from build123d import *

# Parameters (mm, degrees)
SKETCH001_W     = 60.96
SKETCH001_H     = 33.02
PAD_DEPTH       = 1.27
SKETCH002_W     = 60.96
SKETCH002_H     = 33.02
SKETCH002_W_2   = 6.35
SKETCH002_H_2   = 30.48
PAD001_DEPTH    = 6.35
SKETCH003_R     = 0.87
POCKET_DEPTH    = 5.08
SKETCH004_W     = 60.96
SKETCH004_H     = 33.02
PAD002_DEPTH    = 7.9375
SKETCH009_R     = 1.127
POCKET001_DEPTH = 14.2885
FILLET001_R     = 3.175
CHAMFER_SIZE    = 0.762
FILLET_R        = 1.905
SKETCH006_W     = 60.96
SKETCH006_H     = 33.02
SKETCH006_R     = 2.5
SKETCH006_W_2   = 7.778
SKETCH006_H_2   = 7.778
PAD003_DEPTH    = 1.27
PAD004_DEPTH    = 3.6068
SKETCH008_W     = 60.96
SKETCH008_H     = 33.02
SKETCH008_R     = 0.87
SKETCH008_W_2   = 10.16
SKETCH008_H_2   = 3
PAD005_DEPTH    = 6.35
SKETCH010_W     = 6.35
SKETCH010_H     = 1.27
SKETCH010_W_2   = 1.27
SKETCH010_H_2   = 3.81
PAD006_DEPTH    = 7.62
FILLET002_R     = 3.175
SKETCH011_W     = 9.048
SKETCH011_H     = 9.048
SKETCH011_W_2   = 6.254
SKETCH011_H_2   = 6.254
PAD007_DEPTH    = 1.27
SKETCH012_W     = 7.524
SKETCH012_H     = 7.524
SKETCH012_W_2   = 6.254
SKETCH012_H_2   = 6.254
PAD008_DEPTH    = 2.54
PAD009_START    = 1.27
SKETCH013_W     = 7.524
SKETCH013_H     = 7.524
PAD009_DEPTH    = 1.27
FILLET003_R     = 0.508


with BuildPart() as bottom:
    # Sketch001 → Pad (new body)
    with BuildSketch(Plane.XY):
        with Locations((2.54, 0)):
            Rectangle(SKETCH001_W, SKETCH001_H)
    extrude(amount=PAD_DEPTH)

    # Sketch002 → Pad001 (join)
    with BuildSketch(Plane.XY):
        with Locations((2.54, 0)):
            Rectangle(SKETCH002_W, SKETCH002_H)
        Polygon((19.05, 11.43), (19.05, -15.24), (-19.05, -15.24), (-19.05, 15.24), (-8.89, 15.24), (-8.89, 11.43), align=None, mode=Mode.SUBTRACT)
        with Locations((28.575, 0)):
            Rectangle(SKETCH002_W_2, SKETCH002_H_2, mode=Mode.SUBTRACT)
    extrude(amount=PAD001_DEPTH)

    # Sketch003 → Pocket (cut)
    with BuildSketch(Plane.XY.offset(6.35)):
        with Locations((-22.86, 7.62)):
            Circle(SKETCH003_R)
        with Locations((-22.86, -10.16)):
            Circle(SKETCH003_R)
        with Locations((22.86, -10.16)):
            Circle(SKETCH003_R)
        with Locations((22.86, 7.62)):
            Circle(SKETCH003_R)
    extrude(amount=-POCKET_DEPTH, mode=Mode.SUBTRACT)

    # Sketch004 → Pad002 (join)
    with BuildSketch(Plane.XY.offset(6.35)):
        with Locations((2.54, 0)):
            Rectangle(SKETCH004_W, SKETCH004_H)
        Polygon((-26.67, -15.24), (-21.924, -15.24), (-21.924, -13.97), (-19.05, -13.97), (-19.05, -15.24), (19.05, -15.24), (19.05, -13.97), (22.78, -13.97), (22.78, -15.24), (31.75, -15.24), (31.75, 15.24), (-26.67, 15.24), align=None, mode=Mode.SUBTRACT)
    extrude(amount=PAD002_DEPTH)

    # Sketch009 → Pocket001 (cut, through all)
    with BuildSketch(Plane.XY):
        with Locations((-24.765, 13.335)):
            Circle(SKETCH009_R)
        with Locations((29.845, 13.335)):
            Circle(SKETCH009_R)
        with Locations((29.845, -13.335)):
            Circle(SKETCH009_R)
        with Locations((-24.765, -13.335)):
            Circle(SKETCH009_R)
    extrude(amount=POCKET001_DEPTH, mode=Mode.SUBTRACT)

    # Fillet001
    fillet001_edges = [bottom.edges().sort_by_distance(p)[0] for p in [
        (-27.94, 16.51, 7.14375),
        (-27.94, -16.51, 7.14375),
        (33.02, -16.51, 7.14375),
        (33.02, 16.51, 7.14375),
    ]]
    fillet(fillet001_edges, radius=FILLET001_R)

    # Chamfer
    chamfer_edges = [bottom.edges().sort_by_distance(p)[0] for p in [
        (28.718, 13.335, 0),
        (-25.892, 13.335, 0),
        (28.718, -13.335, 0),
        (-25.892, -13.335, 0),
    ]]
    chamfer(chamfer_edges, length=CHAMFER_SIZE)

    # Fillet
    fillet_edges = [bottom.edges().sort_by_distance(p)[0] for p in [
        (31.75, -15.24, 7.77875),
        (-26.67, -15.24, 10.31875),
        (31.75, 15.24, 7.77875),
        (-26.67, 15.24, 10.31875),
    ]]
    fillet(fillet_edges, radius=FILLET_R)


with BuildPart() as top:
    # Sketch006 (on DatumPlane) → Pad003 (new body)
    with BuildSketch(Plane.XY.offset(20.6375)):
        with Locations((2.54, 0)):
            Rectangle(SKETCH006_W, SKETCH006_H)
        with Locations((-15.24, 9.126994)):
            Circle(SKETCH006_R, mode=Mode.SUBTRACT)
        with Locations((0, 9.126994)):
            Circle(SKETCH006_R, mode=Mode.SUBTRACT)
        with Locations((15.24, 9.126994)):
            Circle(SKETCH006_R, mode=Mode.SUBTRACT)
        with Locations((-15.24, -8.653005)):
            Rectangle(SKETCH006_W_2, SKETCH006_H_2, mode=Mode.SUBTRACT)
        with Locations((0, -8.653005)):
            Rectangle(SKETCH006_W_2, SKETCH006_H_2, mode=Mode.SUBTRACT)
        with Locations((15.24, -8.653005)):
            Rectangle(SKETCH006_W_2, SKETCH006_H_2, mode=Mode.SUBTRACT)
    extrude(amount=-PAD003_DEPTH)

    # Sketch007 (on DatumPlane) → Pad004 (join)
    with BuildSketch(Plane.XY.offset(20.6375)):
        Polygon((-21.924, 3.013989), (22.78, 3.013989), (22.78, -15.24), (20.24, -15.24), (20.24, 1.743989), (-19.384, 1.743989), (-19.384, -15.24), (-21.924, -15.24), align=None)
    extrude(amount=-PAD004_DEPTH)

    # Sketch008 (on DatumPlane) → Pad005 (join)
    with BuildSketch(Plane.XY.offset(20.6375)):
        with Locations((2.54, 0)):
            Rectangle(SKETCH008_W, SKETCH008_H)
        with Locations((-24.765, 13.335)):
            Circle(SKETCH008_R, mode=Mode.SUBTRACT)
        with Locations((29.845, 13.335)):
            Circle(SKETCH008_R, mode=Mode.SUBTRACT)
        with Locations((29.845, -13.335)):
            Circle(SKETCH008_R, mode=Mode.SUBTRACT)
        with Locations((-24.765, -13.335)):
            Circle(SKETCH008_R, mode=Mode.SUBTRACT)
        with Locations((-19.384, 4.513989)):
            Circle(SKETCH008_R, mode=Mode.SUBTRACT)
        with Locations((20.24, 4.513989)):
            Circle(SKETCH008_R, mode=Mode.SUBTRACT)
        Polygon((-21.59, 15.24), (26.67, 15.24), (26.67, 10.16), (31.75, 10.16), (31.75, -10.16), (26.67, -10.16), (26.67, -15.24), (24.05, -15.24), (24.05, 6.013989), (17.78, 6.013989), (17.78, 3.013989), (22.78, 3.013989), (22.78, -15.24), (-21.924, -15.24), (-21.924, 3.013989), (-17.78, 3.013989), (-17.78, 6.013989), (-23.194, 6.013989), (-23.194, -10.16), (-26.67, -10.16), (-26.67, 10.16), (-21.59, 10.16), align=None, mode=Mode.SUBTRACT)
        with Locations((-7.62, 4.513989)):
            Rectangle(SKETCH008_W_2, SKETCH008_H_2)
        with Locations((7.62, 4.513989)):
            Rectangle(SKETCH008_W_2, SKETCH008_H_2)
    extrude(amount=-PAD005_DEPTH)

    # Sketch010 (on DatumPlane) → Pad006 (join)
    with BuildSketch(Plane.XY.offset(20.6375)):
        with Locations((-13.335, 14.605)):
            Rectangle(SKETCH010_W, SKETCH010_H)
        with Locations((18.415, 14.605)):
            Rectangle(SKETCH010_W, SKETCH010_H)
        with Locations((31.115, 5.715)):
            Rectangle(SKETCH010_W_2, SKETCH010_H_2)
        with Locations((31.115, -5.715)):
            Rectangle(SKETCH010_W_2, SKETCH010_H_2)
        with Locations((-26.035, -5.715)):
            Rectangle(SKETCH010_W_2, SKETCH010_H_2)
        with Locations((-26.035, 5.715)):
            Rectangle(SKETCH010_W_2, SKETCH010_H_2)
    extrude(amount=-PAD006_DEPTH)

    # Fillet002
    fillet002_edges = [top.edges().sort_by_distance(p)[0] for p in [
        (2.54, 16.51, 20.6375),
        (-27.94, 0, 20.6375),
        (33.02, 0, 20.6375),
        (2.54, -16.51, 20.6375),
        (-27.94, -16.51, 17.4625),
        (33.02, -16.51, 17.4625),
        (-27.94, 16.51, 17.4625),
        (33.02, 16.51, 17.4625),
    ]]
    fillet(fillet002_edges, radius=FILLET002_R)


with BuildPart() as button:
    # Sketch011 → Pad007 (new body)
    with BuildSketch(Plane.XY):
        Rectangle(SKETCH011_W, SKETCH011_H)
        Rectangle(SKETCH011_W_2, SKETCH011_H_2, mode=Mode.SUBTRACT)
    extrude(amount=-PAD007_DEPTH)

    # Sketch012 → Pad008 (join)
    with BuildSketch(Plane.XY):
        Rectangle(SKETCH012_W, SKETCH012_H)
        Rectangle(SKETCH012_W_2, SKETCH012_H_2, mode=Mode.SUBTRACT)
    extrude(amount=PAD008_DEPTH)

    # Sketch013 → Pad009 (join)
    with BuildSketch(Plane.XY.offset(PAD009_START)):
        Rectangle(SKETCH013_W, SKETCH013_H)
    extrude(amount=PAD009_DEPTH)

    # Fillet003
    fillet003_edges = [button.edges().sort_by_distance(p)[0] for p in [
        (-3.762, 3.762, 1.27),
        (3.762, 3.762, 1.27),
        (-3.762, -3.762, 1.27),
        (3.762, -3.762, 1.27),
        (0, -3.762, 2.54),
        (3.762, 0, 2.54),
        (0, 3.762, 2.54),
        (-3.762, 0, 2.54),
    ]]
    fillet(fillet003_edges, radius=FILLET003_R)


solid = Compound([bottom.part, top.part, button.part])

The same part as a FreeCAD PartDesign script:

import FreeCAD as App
import Part
import Sketcher
from FreeCAD import Vector
Q = App.Units.Quantity


def edges_at(feature, points):
    """Names of the edges that pass closest to the given points."""
    edges = feature.Shape.Edges
    near = lambda p: min(range(len(edges)), key=lambda i: edges[i].distToShape(Part.Vertex(*p))[0])
    return sorted({f"Edge{near(p) + 1}" for p in points})


def add_polygon(sketch, points):
    """Adds a closed chain of lines whose ends are joined by coincident constraints."""
    first, n = sketch.GeometryCount, len(points)
    for a, b in zip(points, points[1:] + points[:1]):
        sketch.addGeometry(Part.LineSegment(App.Vector(*a, 0), App.Vector(*b, 0)), False)
    for i in range(n):
        sketch.addConstraint(Sketcher.Constraint("Coincident", first + i, 2, first + (i + 1) % n, 1))

doc = App.newDocument("Part")
params = doc.addObject("Spreadsheet::Sheet", "Params")
for row, (alias, value) in enumerate([
    ("sketch1_width", "2.4 in"),
    ("sketch1_height", "1.3 in"),
    ("pad1_length", "0.05 in"),
    ("sketch2_width", "2.4 in"),
    ("sketch2_width2", "1.1 in"),
    ("sketch2_width3", "1.5 in"),
    ("sketch2_height", "1.3 in"),
    ("sketch2_height2", "1.2 in"),
    ("pad2_length", "0.25 in"),
    ("pocket1_length", "0.2 in"),
    ("sketch4_width", "2.4 in"),
    ("sketch4_width2", "2.3 in"),
    ("sketch4_width3", "1.5 in"),
    ("sketch4_height", "1.3 in"),
    ("sketch4_height2", "1.2 in"),
    ("pad3_length", "0.3125 in"),
    ("fillet_radius", "0.125 in"),
    ("chamfer_size", "0.03 in"),
    ("fillet2_radius", "0.075 in"),
    ("sketch6_width", "2.4 in"),
    ("sketch6_height", "1.3 in"),
    ("pad4_length", "0.05 in"),
    ("sketch7_width", "0.1 in"),
    ("sketch7_width2", "1.76 in"),
    ("pad5_length", "0.142 in"),
    ("sketch8_width", "2.4 in"),
    ("sketch8_width2", "1.9 in"),
    ("sketch8_width3", "0.2 in"),
    ("sketch8_width4", "0.4 in"),
    ("sketch8_height", "1.3 in"),
    ("pad6_length", "0.25 in"),
    ("sketch9_width", "0.25 in"),
    ("sketch9_width2", "0.05 in"),
    ("sketch9_height", "0.15 in"),
    ("pad7_length", "0.3 in"),
    ("fillet3_radius", "0.125 in"),
    ("pad8_length", "0.05 in"),
    ("pad9_length", "0.1 in"),
    ("pad10_length", "0.05 in"),
    ("fillet4_radius", "0.02 in"),
], start=1):
    params.set(f"A{row}", alias)
    params.set(f"B{row}", "=" + value)
    params.setAlias(f"B{row}", alias)

body = doc.addObject("PartDesign::Body", "Body")

sketch1 = body.newObject("Sketcher::SketchObject", "Sketch")
sketch1.AttachmentSupport = (doc.getObject("XY_Plane"), [""])
sketch1.MapMode = "FlatFace"
add_polygon(sketch1, [(-27.94, 16.51), (-27.94, -16.51), (33.02, -16.51), (33.02, 16.51)])
sketch1.addConstraint([
    Sketcher.Constraint("Vertical", 0),
    Sketcher.Constraint("Horizontal", 1),
    Sketcher.Constraint("Vertical", 2),
    Sketcher.Constraint("Horizontal", 3),
    Sketcher.Constraint("DistanceX", 1, 1, 1, 2, Q("2.4 in")),
    Sketcher.Constraint("DistanceY", 0, 2, 0, 1, Q("1.3 in")),
    Sketcher.Constraint("DistanceX", 0, 2, -1, 1, Q("1.1 in")),
    Sketcher.Constraint("DistanceY", 0, 2, -1, 1, Q("0.65 in")),
])
sketch1.setExpression("Constraints[8]", "Params.sketch1_width")
sketch1.setExpression("Constraints[9]", "Params.sketch1_height")
pad1 = body.newObject("PartDesign::Pad", "Pad")
pad1.Profile = sketch1
pad1.setExpression("Length", "Params.pad1_length")

sketch2 = body.newObject("Sketcher::SketchObject", "Sketch001")
sketch2.AttachmentSupport = (doc.getObject("XY_Plane"), [""])
sketch2.MapMode = "FlatFace"
add_polygon(sketch2, [(-27.94, 16.51), (-27.94, -16.51), (33.02, -16.51), (33.02, 16.51)])
add_polygon(sketch2, [(-8.89, 11.43), (19.05, 11.43), (19.05, -15.24), (-19.05, -15.24), (-19.05, 15.24), (-8.89, 15.24)])
add_polygon(sketch2, [(31.75, -15.24), (25.4, -15.24), (25.4, 15.24), (31.75, 15.24)])
sketch2.addConstraint([
    Sketcher.Constraint("Vertical", 0),
    Sketcher.Constraint("Horizontal", 1),
    Sketcher.Constraint("Vertical", 2),
    Sketcher.Constraint("Horizontal", 3),
    Sketcher.Constraint("Horizontal", 4),
    Sketcher.Constraint("Vertical", 5),
    Sketcher.Constraint("Horizontal", 6),
    Sketcher.Constraint("Vertical", 7),
    Sketcher.Constraint("Horizontal", 8),
    Sketcher.Constraint("Vertical", 9),
    Sketcher.Constraint("Horizontal", 10),
    Sketcher.Constraint("Vertical", 11),
    Sketcher.Constraint("Horizontal", 12),
    Sketcher.Constraint("Vertical", 13),
    Sketcher.Constraint("Symmetric", 5, 2, 7, 2, -1, 1),
    Sketcher.Constraint("Horizontal", 6, 2, 10, 2),
    Sketcher.Constraint("Horizontal", 8, 2, 11, 2),
    Sketcher.Constraint("DistanceX", 1, 1, 1, 2, Q("2.4 in")),
    Sketcher.Constraint("DistanceX", 4, 1, 4, 2, Q("1.1 in")),
    Sketcher.Constraint("DistanceX", 6, 2, 6, 1, Q("1.5 in")),
    Sketcher.Constraint("DistanceY", 0, 2, 0, 1, Q("1.3 in")),
    Sketcher.Constraint("DistanceY", 7, 1, 7, 2, Q("1.2 in")),
    Sketcher.Constraint("DistanceX", -1, 1, 10, 2, Q("1 in")),
    Sketcher.Constraint("DistanceX", 10, 2, 10, 1, Q("0.25 in")),
    Sketcher.Constraint("DistanceY", 5, 2, 5, 1, Q("1.05 in")),
    Sketcher.Constraint("DistanceX", 0, 2, -1, 1, Q("1.1 in")),
    Sketcher.Constraint("DistanceY", 4, 2, 2, 2, Q("0.2 in")),
])
sketch2.setExpression("Constraints[31]", "Params.sketch2_width")
sketch2.setExpression("Constraints[32]", "Params.sketch2_width2")
sketch2.setExpression("Constraints[33]", "Params.sketch2_width3")
sketch2.setExpression("Constraints[34]", "Params.sketch2_height")
sketch2.setExpression("Constraints[35]", "Params.sketch2_height2")
pad2 = body.newObject("PartDesign::Pad", "Pad001")
pad2.Profile = sketch2
pad2.setExpression("Length", "Params.pad2_length")

sketch3 = body.newObject("Sketcher::SketchObject", "Sketch002")
sketch3.AttachmentSupport = (doc.getObject("XY_Plane"), [""])
sketch3.MapMode = "FlatFace"
sketch3.AttachmentOffset = App.Placement(Vector(0, 0, 0.25 * 25.4), App.Rotation())
sketch3.addGeometry([
    Part.Circle(Vector(-22.86, 7.62, 0), Vector(0, 0, 1), 0.87),
    Part.Circle(Vector(-22.86, -10.16, 0), Vector(0, 0, 1), 0.87),
    Part.Circle(Vector(22.86, -10.16, 0), Vector(0, 0, 1), 0.87),
    Part.Circle(Vector(22.86, 7.62, 0), Vector(0, 0, 1), 0.87),
], False)
sketch3.addConstraint([
    Sketcher.Constraint("Equal", 0, 1),
    Sketcher.Constraint("Equal", 1, 2),
    Sketcher.Constraint("Equal", 2, 3),
    Sketcher.Constraint("Symmetric", 1, 3, 2, 3, -2),
    Sketcher.Constraint("Symmetric", 0, 3, 3, 3, -2),
    Sketcher.Constraint("Vertical", 0, 3, 1, 3),
    Sketcher.Constraint("DistanceX", 0, 3, -1, 1, Q("0.9 in")),
    Sketcher.Constraint("DistanceY", -1, 1, 0, 3, Q("0.3 in")),
    Sketcher.Constraint("DistanceY", 1, 3, -1, 1, Q("0.4 in")),
    Sketcher.Constraint("Diameter", 0, Q("1.74 mm")),
])
pocket1 = body.newObject("PartDesign::Pocket", "Pocket")
pocket1.Profile = sketch3
pocket1.setExpression("Length", "Params.pocket1_length")

sketch4 = body.newObject("Sketcher::SketchObject", "Sketch003")
sketch4.AttachmentSupport = (doc.getObject("XY_Plane"), [""])
sketch4.MapMode = "FlatFace"
sketch4.AttachmentOffset = App.Placement(Vector(0, 0, 0.25 * 25.4), App.Rotation())
add_polygon(sketch4, [(-27.94, 16.51), (-27.94, -16.51), (33.02, -16.51), (33.02, 16.51)])
add_polygon(sketch4, [(-21.924, -15.24), (-26.67, -15.24), (-26.67, 15.24), (31.75, 15.24), (31.75, -15.24), (22.78, -15.24), (22.78, -13.97), (19.05, -13.97), (19.05, -15.24), (-19.05, -15.24), (-19.05, -13.97), (-21.924, -13.97)])
sketch4.addConstraint([
    Sketcher.Constraint("Vertical", 0),
    Sketcher.Constraint("Horizontal", 1),
    Sketcher.Constraint("Vertical", 2),
    Sketcher.Constraint("Horizontal", 3),
    Sketcher.Constraint("Horizontal", 4),
    Sketcher.Constraint("Vertical", 5),
    Sketcher.Constraint("Horizontal", 6),
    Sketcher.Constraint("Vertical", 7),
    Sketcher.Constraint("Horizontal", 8),
    Sketcher.Constraint("Vertical", 9),
    Sketcher.Constraint("Horizontal", 10),
    Sketcher.Constraint("Vertical", 11),
    Sketcher.Constraint("Horizontal", 12),
    Sketcher.Constraint("Vertical", 13),
    Sketcher.Constraint("Horizontal", 14),
    Sketcher.Constraint("Vertical", 15),
    Sketcher.Constraint("Symmetric", 10, 2, 13, 2, -2),
    Sketcher.Constraint("Horizontal", 4, 2, 7, 2),
    Sketcher.Constraint("Horizontal", 8, 2, 11, 2),
    Sketcher.Constraint("DistanceX", 1, 1, 1, 2, Q("2.4 in")),
    Sketcher.Constraint("DistanceX", 6, 1, 6, 2, Q("2.3 in")),
    Sketcher.Constraint("DistanceX", 12, 2, 12, 1, Q("1.5 in")),
    Sketcher.Constraint("DistanceY", 0, 2, 0, 1, Q("1.3 in")),
    Sketcher.Constraint("DistanceY", 5, 1, 5, 2, Q("1.2 in")),
    Sketcher.Constraint("DistanceY", 9, 1, 9, 2, Q("0.05 in")),
    Sketcher.Constraint("DistanceX", 0, 2, -1, 1, Q("1.1 in")),
    Sketcher.Constraint("DistanceY", 4, 2, -1, 1, Q("0.6 in")),
    Sketcher.Constraint("DistanceY", 1, 2, 9, 2, Q("0.1 in")),
    Sketcher.Constraint("DistanceX", 10, 2, 7, 2, Q("0.5 in")),
    Sketcher.Constraint("DistanceX", 4, 2, 4, 1, Q("4.746 mm")),
    Sketcher.Constraint("DistanceX", 8, 2, 8, 1, Q("8.97 mm")),
])
sketch4.setExpression("Constraints[35]", "Params.sketch4_width")
sketch4.setExpression("Constraints[36]", "Params.sketch4_width2")
sketch4.setExpression("Constraints[37]", "Params.sketch4_width3")
sketch4.setExpression("Constraints[38]", "Params.sketch4_height")
sketch4.setExpression("Constraints[39]", "Params.sketch4_height2")
pad3 = body.newObject("PartDesign::Pad", "Pad002")
pad3.Profile = sketch4
pad3.setExpression("Length", "Params.pad3_length")

sketch5 = body.newObject("Sketcher::SketchObject", "Sketch004")
sketch5.AttachmentSupport = (doc.getObject("XY_Plane"), [""])
sketch5.MapMode = "FlatFace"
sketch5.addGeometry([
    Part.Circle(Vector(-24.765, 13.335, 0), Vector(0, 0, 1), 1.127),
    Part.Circle(Vector(29.845, 13.335, 0), Vector(0, 0, 1), 1.127),
    Part.Circle(Vector(29.845, -13.335, 0), Vector(0, 0, 1), 1.127),
    Part.Circle(Vector(-24.765, -13.335, 0), Vector(0, 0, 1), 1.127),
], False)
sketch5.addConstraint([
    Sketcher.Constraint("Equal", 0, 1),
    Sketcher.Constraint("Equal", 1, 2),
    Sketcher.Constraint("Equal", 2, 3),
    Sketcher.Constraint("Symmetric", 1, 3, 2, 3, -1),
    Sketcher.Constraint("Symmetric", 0, 3, 3, 3, -1),
    Sketcher.Constraint("Horizontal", 0, 3, 1, 3),
    Sketcher.Constraint("Diameter", 0, Q("2.254 mm")),
    Sketcher.Constraint("DistanceX", 0, 3, 1, 3, Q("2.15 in")),
    Sketcher.Constraint("DistanceY", 2, 3, 1, 3, Q("1.05 in")),
    Sketcher.Constraint("DistanceX", 0, 3, -1, 1, Q("0.975 in")),
])
pocket2 = body.newObject("PartDesign::Pocket", "Pocket001")
pocket2.Profile = sketch5
pocket2.Type = "ThroughAll"
pocket2.Reversed = True
doc.recompute()

fillet = body.newObject("PartDesign::Fillet", "Fillet")
fillet.Base = (pocket2, edges_at(pocket2, [
    (-27.94, 16.51, 7.144),
    (-27.94, -16.51, 7.144),
    (33.02, -16.51, 7.144),
    (33.02, 16.51, 7.144),
]))
fillet.setExpression("Radius", "Params.fillet_radius")
doc.recompute()

chamfer = body.newObject("PartDesign::Chamfer", "Chamfer")
chamfer.Base = (fillet, edges_at(fillet, [
    (28.718, 13.335, 0),
    (-25.892, 13.335, 0),
    (28.718, -13.335, 0),
    (-25.892, -13.335, 0),
]))
chamfer.setExpression("Size", "Params.chamfer_size")
doc.recompute()

fillet2 = body.newObject("PartDesign::Fillet", "Fillet001")
fillet2.Base = (chamfer, edges_at(chamfer, [
    (31.75, -15.24, 7.779),
    (-26.67, -15.24, 10.319),
    (31.75, 15.24, 7.779),
    (-26.67, 15.24, 10.319),
]))
fillet2.setExpression("Radius", "Params.fillet2_radius")
body2 = doc.addObject("PartDesign::Body", "Body001")

sketch6 = body2.newObject("Sketcher::SketchObject", "Sketch005")
sketch6.AttachmentSupport = (doc.getObject("XY_Plane001"), [""])
sketch6.MapMode = "FlatFace"
sketch6.AttachmentOffset = App.Placement(Vector(0, 0, 0.8125 * 25.4), App.Rotation())
add_polygon(sketch6, [(-27.94, 16.51), (-27.94, -16.51), (33.02, -16.51), (33.02, 16.51)])
add_polygon(sketch6, [(-11.351, -12.542005), (-19.129, -12.542005), (-19.129, -4.764005), (-11.351, -4.764005)])
add_polygon(sketch6, [(3.889, -12.542005), (-3.889, -12.542005), (-3.889, -4.764005), (3.889, -4.764005)])
add_polygon(sketch6, [(19.129, -12.542005), (11.351, -12.542005), (11.351, -4.764005), (19.129, -4.764005)])
sketch6.addGeometry(Part.Circle(Vector(-15.24, 9.126994, 0), Vector(0, 0, 1), 2.5), False)
sketch6.addGeometry(Part.Circle(Vector(0, 9.126994, 0), Vector(0, 0, 1), 2.5), False)
sketch6.addGeometry(Part.Circle(Vector(15.24, 9.126994, 0), Vector(0, 0, 1), 2.5), False)
sketch6.addConstraint([
    Sketcher.Constraint("Vertical", 0),
    Sketcher.Constraint("Horizontal", 1),
    Sketcher.Constraint("Vertical", 2),
    Sketcher.Constraint("Horizontal", 3),
    Sketcher.Constraint("Horizontal", 4),
    Sketcher.Constraint("Vertical", 5),
    Sketcher.Constraint("Horizontal", 6),
    Sketcher.Constraint("Vertical", 7),
    Sketcher.Constraint("Horizontal", 8),
    Sketcher.Constraint("Vertical", 9),
    Sketcher.Constraint("Horizontal", 10),
    Sketcher.Constraint("Vertical", 11),
    Sketcher.Constraint("Horizontal", 12),
    Sketcher.Constraint("Vertical", 13),
    Sketcher.Constraint("Horizontal", 14),
    Sketcher.Constraint("Vertical", 15),
    Sketcher.Constraint("Equal", 16, 17),
    Sketcher.Constraint("Equal", 17, 18),
    Sketcher.Constraint("Symmetric", 16, 3, 18, 3, -2),
    Sketcher.Constraint("Symmetric", 7, 2, 12, 2, -2),
    Sketcher.Constraint("Symmetric", 5, 2, 14, 2, -2),
    Sketcher.Constraint("PointOnObject", 17, 3, -2),
    Sketcher.Constraint("Horizontal", 16, 3, 17, 3),
    Sketcher.Constraint("Horizontal", 7, 2, 8, 2),
    Sketcher.Constraint("Horizontal", 6, 2, 9, 2),
    Sketcher.Constraint("Equal", 6, 8),
    Sketcher.Constraint("Equal", 14, 5),
    Sketcher.Constraint("DistanceX", 1, 1, 1, 2, Q("2.4 in")),
    Sketcher.Constraint("DistanceY", 0, 2, 0, 1, Q("1.3 in")),
    Sketcher.Constraint("DistanceX", 16, 3, -1, 1, Q("0.6 in")),
    Sketcher.Constraint("DistanceX", 0, 2, -1, 1, Q("1.1 in")),
    Sketcher.Constraint("DistanceX", 4, 2, 8, 2, Q("0.6 in")),
    Sketcher.Constraint("DistanceX", 8, 2, 12, 2, Q("0.6 in")),
    Sketcher.Constraint("Diameter", 16, Q("5 mm")),
    Sketcher.Constraint("DistanceY", 0, 2, -1, 1, Q("0.65 in")),
    Sketcher.Constraint("DistanceX", 4, 2, 4, 1, Q("7.778 mm")),
    Sketcher.Constraint("DistanceY", 4, 2, 16, 3, Q("21.668999 mm")),
    Sketcher.Constraint("DistanceY", -1, 1, 16, 3, Q("9.126994 mm")),
])
sketch6.setExpression("Constraints[43]", "Params.sketch6_width")
sketch6.setExpression("Constraints[44]", "Params.sketch6_height")
pad4 = body2.newObject("PartDesign::Pad", "Pad003")
pad4.Profile = sketch6
pad4.setExpression("Length", "Params.pad4_length")
pad4.Reversed = True

sketch7 = body2.newObject("Sketcher::SketchObject", "Sketch006")
sketch7.AttachmentSupport = (doc.getObject("XY_Plane001"), [""])
sketch7.MapMode = "FlatFace"
sketch7.AttachmentOffset = App.Placement(Vector(0, 0, 0.8125 * 25.4), App.Rotation())
add_polygon(sketch7, [(22.78, 3.013989), (-21.924, 3.013989), (-21.924, -15.24), (-19.384, -15.24), (-19.384, 1.743989), (20.24, 1.743989), (20.24, -15.24), (22.78, -15.24)])
sketch7.addConstraint([
    Sketcher.Constraint("Horizontal", 0),
    Sketcher.Constraint("Vertical", 1),
    Sketcher.Constraint("Horizontal", 2),
    Sketcher.Constraint("Vertical", 3),
    Sketcher.Constraint("Horizontal", 4),
    Sketcher.Constraint("Vertical", 5),
    Sketcher.Constraint("Horizontal", 6),
    Sketcher.Constraint("Vertical", 7),
    Sketcher.Constraint("Horizontal", 2, 2, 5, 2),
    Sketcher.Constraint("Equal", 2, 6),
    Sketcher.Constraint("DistanceX", 2, 1, 2, 2, Q("0.1 in")),
    Sketcher.Constraint("DistanceX", 0, 2, 0, 1, Q("1.76 in")),
    Sketcher.Constraint("DistanceY", 1, 2, -1, 1, Q("0.6 in")),
    Sketcher.Constraint("DistanceY", 3, 2, 0, 2, Q("0.05 in")),
    Sketcher.Constraint("DistanceY", 1, 2, 1, 1, Q("18.253989 mm")),
    Sketcher.Constraint("DistanceX", 0, 2, -1, 1, Q("21.924 mm")),
])
sketch7.setExpression("Constraints[18]", "Params.sketch7_width")
sketch7.setExpression("Constraints[19]", "Params.sketch7_width2")
pad5 = body2.newObject("PartDesign::Pad", "Pad004")
pad5.Profile = sketch7
pad5.setExpression("Length", "Params.pad5_length")
pad5.Reversed = True

sketch8 = body2.newObject("Sketcher::SketchObject", "Sketch007")
sketch8.AttachmentSupport = (doc.getObject("XY_Plane001"), [""])
sketch8.MapMode = "FlatFace"
sketch8.AttachmentOffset = App.Placement(Vector(0, 0, 0.8125 * 25.4), App.Rotation())
add_polygon(sketch8, [(-27.94, 16.51), (-27.94, -16.51), (33.02, -16.51), (33.02, 16.51)])
sketch8.addGeometry(Part.Circle(Vector(-24.765, -13.335, 0), Vector(0, 0, 1), 0.87), False)
sketch8.addGeometry(Part.Circle(Vector(29.845, -13.335, 0), Vector(0, 0, 1), 0.87), False)
sketch8.addGeometry(Part.Circle(Vector(-19.384, 4.513989, 0), Vector(0, 0, 1), 0.87), False)
add_polygon(sketch8, [(-21.59, 10.16), (-21.59, 15.24), (26.67, 15.24), (26.67, 10.16), (31.75, 10.16), (31.75, -10.16), (26.67, -10.16), (26.67, -15.24), (24.05, -15.24), (24.05, 6.013989), (17.78, 6.013989), (17.78, 3.013989), (22.78, 3.013989), (22.78, -15.24), (-21.924, -15.24), (-21.924, 3.013989), (-17.78, 3.013989), (-17.78, 6.013989), (-23.194, 6.013989), (-23.194, -10.16), (-26.67, -10.16), (-26.67, 10.16)])
sketch8.addGeometry(Part.Circle(Vector(-24.765, 13.335, 0), Vector(0, 0, 1), 0.87), False)
sketch8.addGeometry(Part.Circle(Vector(20.24, 4.513989, 0), Vector(0, 0, 1), 0.87), False)
sketch8.addGeometry(Part.Circle(Vector(29.845, 13.335, 0), Vector(0, 0, 1), 0.87), False)
add_polygon(sketch8, [(-12.7, 6.013989), (-12.7, 3.013989), (-2.54, 3.013989), (-2.54, 6.013989)])
add_polygon(sketch8, [(2.54, 6.013989), (2.54, 3.013989), (12.7, 3.013989), (12.7, 6.013989)])
sketch8.addConstraint([
    Sketcher.Constraint("Vertical", 0),
    Sketcher.Constraint("Horizontal", 1),
    Sketcher.Constraint("Vertical", 2),
    Sketcher.Constraint("Horizontal", 3),
    Sketcher.Constraint("Vertical", 7),
    Sketcher.Constraint("Horizontal", 8),
    Sketcher.Constraint("Vertical", 9),
    Sketcher.Constraint("Horizontal", 10),
    Sketcher.Constraint("Vertical", 11),
    Sketcher.Constraint("Horizontal", 12),
    Sketcher.Constraint("Vertical", 13),
    Sketcher.Constraint("Horizontal", 14),
    Sketcher.Constraint("Vertical", 15),
    Sketcher.Constraint("Horizontal", 16),
    Sketcher.Constraint("Vertical", 17),
    Sketcher.Constraint("Horizontal", 18),
    Sketcher.Constraint("Vertical", 19),
    Sketcher.Constraint("Horizontal", 20),
    Sketcher.Constraint("Vertical", 21),
    Sketcher.Constraint("Horizontal", 22),
    Sketcher.Constraint("Vertical", 23),
    Sketcher.Constraint("Horizontal", 24),
    Sketcher.Constraint("Vertical", 25),
    Sketcher.Constraint("Horizontal", 26),
    Sketcher.Constraint("Vertical", 27),
    Sketcher.Constraint("Horizontal", 28),
    Sketcher.Constraint("Vertical", 32),
    Sketcher.Constraint("Horizontal", 33),
    Sketcher.Constraint("Vertical", 34),
    Sketcher.Constraint("Horizontal", 35),
    Sketcher.Constraint("Vertical", 36),
    Sketcher.Constraint("Horizontal", 37),
    Sketcher.Constraint("Vertical", 38),
    Sketcher.Constraint("Horizontal", 39),
    Sketcher.Constraint("Equal", 4, 5),
    Sketcher.Constraint("Equal", 5, 6),
    Sketcher.Constraint("Equal", 6, 29),
    Sketcher.Constraint("Equal", 29, 30),
    Sketcher.Constraint("Equal", 30, 31),
    Sketcher.Constraint("Symmetric", 9, 2, 26, 2, -1, 1),
    Sketcher.Constraint("Symmetric", 12, 2, 27, 2, -1, 1),
    Sketcher.Constraint("Symmetric", 17, 2, 22, 2, -2),
    Sketcher.Constraint("Symmetric", 33, 2, 36, 2, -2),
    Sketcher.Constraint("Symmetric", 35, 2, 38, 2, -2),
    Sketcher.Constraint("Symmetric", 4, 3, 29, 3, -1),
    Sketcher.Constraint("Symmetric", 5, 3, 31, 3, -1),
    Sketcher.Constraint("Horizontal", 4, 3, 5, 3),
    Sketcher.Constraint("Horizontal", 6, 3, 30, 3),
    Sketcher.Constraint("Horizontal", 14, 2, 19, 2),
    Sketcher.Constraint("Horizontal", 16, 2, 23, 2),
    Sketcher.Constraint("Horizontal", 12, 2, 25, 2),
    Sketcher.Constraint("Horizontal", 22, 2, 32, 2),
    Sketcher.Constraint("Horizontal", 24, 2, 34, 2),
    Sketcher.Constraint("Equal", 12, 28),
    Sketcher.Constraint("Equal", 28, 7),
    Sketcher.Constraint("Equal", 9, 13),
    Sketcher.Constraint("DistanceX", 1, 1, 1, 2, Q("2.4 in")),
    Sketcher.Constraint("DistanceX", 8, 1, 8, 2, Q("1.9 in")),
    Sketcher.Constraint("DistanceX", 10, 1, 10, 2, Q("0.2 in")),
    Sketcher.Constraint("DistanceX", 33, 1, 33, 2, Q("0.4 in")),
    Sketcher.Constraint("DistanceY", 0, 2, 0, 1, Q("1.3 in")),
    Sketcher.Constraint("DistanceY", 11, 2, 11, 1, Q("0.8 in")),
    Sketcher.Constraint("DistanceX", 20, 2, 20, 1, Q("1.76 in")),
    Sketcher.Constraint("DistanceX", 0, 2, -1, 1, Q("1.1 in")),
    Sketcher.Constraint("DistanceX", -1, 1, 16, 2, Q("0.7 in")),
    Sketcher.Constraint("DistanceX", 32, 2, -1, 1, Q("0.5 in")),
    Sketcher.Constraint("DistanceX", 30, 3, 18, 2, Q("0.1 in")),
    Sketcher.Constraint("DistanceX", 20, 2, 6, 3, Q("0.1 in")),
    Sketcher.Constraint("Diameter", 4, Q("1.74 mm")),
    Sketcher.Constraint("DistanceY", 0, 2, -1, 1, Q("0.65 in")),
    Sketcher.Constraint("DistanceX", 4, 3, 5, 3, Q("2.15 in")),
    Sketcher.Constraint("DistanceY", 4, 3, 29, 3, Q("1.05 in")),
    Sketcher.Constraint("DistanceX", 30, 3, 15, 2, Q("0.15 in")),
    Sketcher.Constraint("DistanceX", 24, 2, 21, 2, Q("0.05 in")),
    Sketcher.Constraint("DistanceX", 4, 3, -1, 1, Q("0.975 in")),
    Sketcher.Constraint("DistanceX", 14, 2, 14, 1, Q("2.62 mm")),
    Sketcher.Constraint("DistanceY", 17, 2, 17, 1, Q("3 mm")),
    Sketcher.Constraint("DistanceY", 15, 1, 15, 2, Q("21.253989 mm")),
    Sketcher.Constraint("DistanceY", 30, 3, 15, 2, Q("1.5 mm")),
])
sketch8.setExpression("Constraints[90]", "Params.sketch8_width")
sketch8.setExpression("Constraints[91]", "Params.sketch8_width2")
sketch8.setExpression("Constraints[92]", "Params.sketch8_width3")
sketch8.setExpression("Constraints[93]", "Params.sketch8_width4")
sketch8.setExpression("Constraints[94]", "Params.sketch8_height")
pad6 = body2.newObject("PartDesign::Pad", "Pad005")
pad6.Profile = sketch8
pad6.setExpression("Length", "Params.pad6_length")
pad6.Reversed = True

sketch9 = body2.newObject("Sketcher::SketchObject", "Sketch008")
sketch9.AttachmentSupport = (doc.getObject("XY_Plane001"), [""])
sketch9.MapMode = "FlatFace"
sketch9.AttachmentOffset = App.Placement(Vector(0, 0, 0.8125 * 25.4), App.Rotation())
add_polygon(sketch9, [(-16.51, 15.24), (-16.51, 13.97), (-10.16, 13.97), (-10.16, 15.24)])
add_polygon(sketch9, [(15.24, 15.24), (15.24, 13.97), (21.59, 13.97), (21.59, 15.24)])
add_polygon(sketch9, [(30.48, 7.62), (30.48, 3.81), (31.75, 3.81), (31.75, 7.62)])
add_polygon(sketch9, [(30.48, -3.81), (30.48, -7.62), (31.75, -7.62), (31.75, -3.81)])
add_polygon(sketch9, [(-26.67, -3.81), (-26.67, -7.62), (-25.4, -7.62), (-25.4, -3.81)])
add_polygon(sketch9, [(-26.67, 7.62), (-26.67, 3.81), (-25.4, 3.81), (-25.4, 7.62)])
sketch9.addConstraint([
    Sketcher.Constraint("Vertical", 0),
    Sketcher.Constraint("Horizontal", 1),
    Sketcher.Constraint("Vertical", 2),
    Sketcher.Constraint("Horizontal", 3),
    Sketcher.Constraint("Vertical", 4),
    Sketcher.Constraint("Horizontal", 5),
    Sketcher.Constraint("Vertical", 6),
    Sketcher.Constraint("Horizontal", 7),
    Sketcher.Constraint("Vertical", 8),
    Sketcher.Constraint("Horizontal", 9),
    Sketcher.Constraint("Vertical", 10),
    Sketcher.Constraint("Horizontal", 11),
    Sketcher.Constraint("Vertical", 12),
    Sketcher.Constraint("Horizontal", 13),
    Sketcher.Constraint("Vertical", 14),
    Sketcher.Constraint("Horizontal", 15),
    Sketcher.Constraint("Vertical", 16),
    Sketcher.Constraint("Horizontal", 17),
    Sketcher.Constraint("Vertical", 18),
    Sketcher.Constraint("Horizontal", 19),
    Sketcher.Constraint("Vertical", 20),
    Sketcher.Constraint("Horizontal", 21),
    Sketcher.Constraint("Vertical", 22),
    Sketcher.Constraint("Horizontal", 23),
    Sketcher.Constraint("Symmetric", 11, 2, 12, 2, -1),
    Sketcher.Constraint("Symmetric", 9, 2, 14, 2, -1),
    Sketcher.Constraint("Symmetric", 19, 2, 20, 2, -1),
    Sketcher.Constraint("Symmetric", 17, 2, 22, 2, -1),
    Sketcher.Constraint("Horizontal", 1, 2, 4, 2),
    Sketcher.Constraint("Horizontal", 3, 2, 6, 2),
    Sketcher.Constraint("Horizontal", 13, 2, 16, 2),
    Sketcher.Constraint("Horizontal", 15, 2, 18, 2),
    Sketcher.Constraint("Equal", 3, 5),
    Sketcher.Constraint("Equal", 15, 17),
    Sketcher.Constraint("Equal", 23, 0),
    Sketcher.Constraint("DistanceX", 17, 2, -1, 1, Q("1 in")),
    Sketcher.Constraint("DistanceX", 1, 2, 4, 2, Q("1 in")),
    Sketcher.Constraint("DistanceX", 1, 1, 1, 2, Q("0.25 in")),
    Sketcher.Constraint("DistanceX", 9, 1, 9, 2, Q("0.05 in")),
    Sketcher.Constraint("DistanceY", 8, 2, 8, 1, Q("0.15 in")),
    Sketcher.Constraint("DistanceX", 1, 2, -1, 1, Q("0.4 in")),
    Sketcher.Constraint("DistanceY", -1, 1, 2, 2, Q("0.6 in")),
    Sketcher.Constraint("DistanceX", -1, 1, 8, 2, Q("1.2 in")),
    Sketcher.Constraint("DistanceY", -1, 1, 10, 2, Q("0.3 in")),
])
sketch9.setExpression("Constraints[61]", "Params.sketch9_width")
sketch9.setExpression("Constraints[62]", "Params.sketch9_width2")
sketch9.setExpression("Constraints[63]", "Params.sketch9_height")
pad7 = body2.newObject("PartDesign::Pad", "Pad006")
pad7.Profile = sketch9
pad7.setExpression("Length", "Params.pad7_length")
pad7.Reversed = True
doc.recompute()

fillet3 = body2.newObject("PartDesign::Fillet", "Fillet002")
fillet3.Base = (pad7, edges_at(pad7, [
    (2.54, 16.51, 20.637),
    (-27.94, 0, 20.637),
    (33.02, 0, 20.637),
    (2.54, -16.51, 20.637),
    (-27.94, -16.51, 17.462),
    (33.02, -16.51, 17.462),
    (-27.94, 16.51, 17.462),
    (33.02, 16.51, 17.462),
]))
fillet3.setExpression("Radius", "Params.fillet3_radius")
body3 = doc.addObject("PartDesign::Body", "Body002")

sketch10 = body3.newObject("Sketcher::SketchObject", "Sketch009")
sketch10.AttachmentSupport = (doc.getObject("XY_Plane002"), [""])
sketch10.MapMode = "FlatFace"
add_polygon(sketch10, [(-4.524, 4.524), (-4.524, -4.524), (4.524, -4.524), (4.524, 4.524)])
add_polygon(sketch10, [(3.127, -3.127), (-3.127, -3.127), (-3.127, 3.127), (3.127, 3.127)])
sketch10.addConstraint([
    Sketcher.Constraint("Vertical", 0),
    Sketcher.Constraint("Horizontal", 1),
    Sketcher.Constraint("Vertical", 2),
    Sketcher.Constraint("Horizontal", 3),
    Sketcher.Constraint("Horizontal", 4),
    Sketcher.Constraint("Vertical", 5),
    Sketcher.Constraint("Horizontal", 6),
    Sketcher.Constraint("Vertical", 7),
    Sketcher.Constraint("Symmetric", 0, 2, 2, 2, -1, 1),
    Sketcher.Constraint("Symmetric", 4, 2, 6, 2, -1, 1),
    Sketcher.Constraint("Equal", 3, 0),
    Sketcher.Constraint("Equal", 6, 5),
    Sketcher.Constraint("DistanceX", 0, 2, 4, 2, Q("0.055 in")),
    Sketcher.Constraint("DistanceX", 1, 1, 1, 2, Q("9.048 mm")),
])
pad8 = body3.newObject("PartDesign::Pad", "Pad007")
pad8.Profile = sketch10
pad8.setExpression("Length", "Params.pad8_length")
pad8.Reversed = True

sketch11 = body3.newObject("Sketcher::SketchObject", "Sketch010")
sketch11.AttachmentSupport = (doc.getObject("XY_Plane002"), [""])
sketch11.MapMode = "FlatFace"
add_polygon(sketch11, [(-3.762, 3.762), (-3.762, -3.762), (3.762, -3.762), (3.762, 3.762)])
add_polygon(sketch11, [(3.127, -3.127), (-3.127, -3.127), (-3.127, 3.127), (3.127, 3.127)])
sketch11.addConstraint([
    Sketcher.Constraint("Vertical", 0),
    Sketcher.Constraint("Horizontal", 1),
    Sketcher.Constraint("Vertical", 2),
    Sketcher.Constraint("Horizontal", 3),
    Sketcher.Constraint("Horizontal", 4),
    Sketcher.Constraint("Vertical", 5),
    Sketcher.Constraint("Horizontal", 6),
    Sketcher.Constraint("Vertical", 7),
    Sketcher.Constraint("Symmetric", 0, 2, 2, 2, -1, 1),
    Sketcher.Constraint("Symmetric", 4, 2, 6, 2, -1, 1),
    Sketcher.Constraint("Equal", 3, 0),
    Sketcher.Constraint("Equal", 6, 5),
    Sketcher.Constraint("DistanceX", 0, 2, 4, 2, Q("0.025 in")),
    Sketcher.Constraint("DistanceX", 1, 1, 1, 2, Q("7.524 mm")),
])
pad9 = body3.newObject("PartDesign::Pad", "Pad008")
pad9.Profile = sketch11
pad9.setExpression("Length", "Params.pad9_length")

sketch12 = body3.newObject("Sketcher::SketchObject", "Sketch011")
sketch12.AttachmentSupport = (doc.getObject("XY_Plane002"), [""])
sketch12.MapMode = "FlatFace"
sketch12.AttachmentOffset = App.Placement(Vector(0, 0, 0.05 * 25.4), App.Rotation())
add_polygon(sketch12, [(-3.762, 3.762), (-3.762, -3.762), (3.762, -3.762), (3.762, 3.762)])
sketch12.addConstraint([
    Sketcher.Constraint("Vertical", 0),
    Sketcher.Constraint("Horizontal", 1),
    Sketcher.Constraint("Vertical", 2),
    Sketcher.Constraint("Horizontal", 3),
    Sketcher.Constraint("Symmetric", 0, 2, 2, 2, -1, 1),
    Sketcher.Constraint("Equal", 3, 0),
    Sketcher.Constraint("DistanceX", 1, 1, 1, 2, Q("7.524 mm")),
])
pad10 = body3.newObject("PartDesign::Pad", "Pad009")
pad10.Profile = sketch12
pad10.setExpression("Length", "Params.pad10_length")
doc.recompute()

fillet4 = body3.newObject("PartDesign::Fillet", "Fillet003")
fillet4.Base = (pad10, edges_at(pad10, [
    (-3.762, 3.762, 1.27),
    (3.762, 3.762, 1.27),
    (-3.762, -3.762, 1.27),
    (3.762, -3.762, 1.27),
    (0, -3.762, 2.54),
    (3.762, 0, 2.54),
    (0, 3.762, 2.54),
    (-3.762, 0, 2.54),
]))
fillet4.setExpression("Radius", "Params.fillet4_radius")

doc.recompute()
